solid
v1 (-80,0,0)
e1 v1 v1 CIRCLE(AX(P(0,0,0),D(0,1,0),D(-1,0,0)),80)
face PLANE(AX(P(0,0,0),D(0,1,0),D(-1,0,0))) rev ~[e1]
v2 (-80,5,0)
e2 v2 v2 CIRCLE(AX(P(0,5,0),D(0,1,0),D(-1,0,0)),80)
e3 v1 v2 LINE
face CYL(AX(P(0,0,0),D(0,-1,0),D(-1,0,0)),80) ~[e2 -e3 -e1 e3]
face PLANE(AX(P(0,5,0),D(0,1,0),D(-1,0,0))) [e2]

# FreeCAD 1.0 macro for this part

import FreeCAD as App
import Part
import Sketcher
from FreeCAD import Vector
Q = App.Units.Quantity

doc = App.newDocument("Part")
body = doc.addObject("PartDesign::Body", "Body")

sketch1 = body.newObject("Sketcher::SketchObject", "Sketch")
sketch1.AttachmentSupport = (doc.getObject("XZ_Plane"), [""])
sketch1.MapMode = "FlatFace"
sketch1.addGeometry(Part.Circle(Vector(0, 0, 0), Vector(0, 0, 1), 80), False)
sketch1.addConstraint(Sketcher.Constraint("Coincident", 0, 3, -1, 1))
sketch1.addConstraint(Sketcher.Constraint("Diameter", 0, Q("160 mm")))
pad1 = body.newObject("PartDesign::Pad", "Pad")
pad1.Profile = sketch1
pad1.Length = 5
pad1.Reversed = True

doc.recompute()
